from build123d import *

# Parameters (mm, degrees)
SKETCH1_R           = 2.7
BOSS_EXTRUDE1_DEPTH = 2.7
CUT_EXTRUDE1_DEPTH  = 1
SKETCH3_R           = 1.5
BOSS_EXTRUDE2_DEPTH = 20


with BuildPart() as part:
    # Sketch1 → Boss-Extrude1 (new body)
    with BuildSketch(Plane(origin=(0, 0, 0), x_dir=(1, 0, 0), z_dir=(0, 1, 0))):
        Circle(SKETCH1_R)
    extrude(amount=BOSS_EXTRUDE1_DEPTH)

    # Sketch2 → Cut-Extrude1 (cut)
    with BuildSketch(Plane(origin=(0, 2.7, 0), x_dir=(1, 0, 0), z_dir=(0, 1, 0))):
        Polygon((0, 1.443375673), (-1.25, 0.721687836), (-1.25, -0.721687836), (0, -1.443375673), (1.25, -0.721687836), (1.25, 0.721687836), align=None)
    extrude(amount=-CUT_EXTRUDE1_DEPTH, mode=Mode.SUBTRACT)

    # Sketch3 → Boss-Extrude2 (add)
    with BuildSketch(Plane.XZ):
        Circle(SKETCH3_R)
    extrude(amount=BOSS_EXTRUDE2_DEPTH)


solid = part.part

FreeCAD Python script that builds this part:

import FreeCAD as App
import Part
import Sketcher

V = App.Vector
Q = App.Units.Quantity

doc = App.newDocument("Part")
body = doc.addObject("PartDesign::Body", "Body")

sketch1 = body.newObject("Sketcher::SketchObject", "Sketch")
sketch1.AttachmentSupport = (doc.getObject("XZ_Plane"), [""])
sketch1.MapMode = "FlatFace"
sketch1.addGeometry(Part.Circle(V(0, 0, 0), V(0, 0, 1), 2.7), False)
sketch1.addConstraint([
    Sketcher.Constraint("Coincident", 0, 3, -1, 1),
    Sketcher.Constraint("Diameter", 0, Q("5.4 mm")),
])
pad1 = body.newObject("PartDesign::Pad", "Pad")
pad1.Profile = sketch1
pad1.Length = 2.7
pad1.Reversed = True

sketch2 = body.newObject("Sketcher::SketchObject", "Sketch001")
sketch2.AttachmentSupport = (doc.getObject("XZ_Plane"), [""])
sketch2.MapMode = "FlatFace"
sketch2.AttachmentOffset = App.Placement(V(0, 0, -2.7), App.Rotation())
sketch2.addGeometry([
    Part.LineSegment(V(0, -1.4, 0), V(-1.2, -0.7, 0)),
    Part.LineSegment(V(-1.2, -0.7, 0), V(-1.2, 0.7, 0)),
    Part.LineSegment(V(-1.2, 0.7, 0), V(0, 1.4, 0)),
    Part.LineSegment(V(0, 1.4, 0), V(1.2, 0.7, 0)),
    Part.LineSegment(V(1.2, 0.7, 0), V(1.2, -0.7, 0)),
    Part.LineSegment(V(1.2, -0.7, 0), V(0, -1.4, 0)),
], False)
sketch2.addConstraint([
    Sketcher.Constraint("Coincident", 0, 2, 1, 1),
    Sketcher.Constraint("Coincident", 1, 2, 2, 1),
    Sketcher.Constraint("Coincident", 2, 2, 3, 1),
    Sketcher.Constraint("Coincident", 3, 2, 4, 1),
    Sketcher.Constraint("Coincident", 4, 2, 5, 1),
    Sketcher.Constraint("Coincident", 5, 2, 0, 1),
    Sketcher.Constraint("Vertical", 1),
    Sketcher.Constraint("Vertical", 4),
    Sketcher.Constraint("Symmetric", 0, 2, 3, 2, -1, 1),
    Sketcher.Constraint("Symmetric", 2, 2, 5, 2, -1, 1),
    Sketcher.Constraint("PointOnObject", 2, 2, -2),
    Sketcher.Constraint("Parallel", 2, 5),
    Sketcher.Constraint("Horizontal", 1, 2, 3, 2),
    Sketcher.Constraint("Angle", 0, Q("150 deg")),
    Sketcher.Constraint("DistanceX", 1, 2, 3, 2, Q("2.5 mm")),
    Sketcher.Constraint("DistanceY", 1, 1, 1, 2, Q("1.443376 mm")),
])
pocket1 = body.newObject("PartDesign::Pocket", "Pocket")
pocket1.Profile = sketch2
pocket1.Length = 1
pocket1.Reversed = True

sketch3 = body.newObject("Sketcher::SketchObject", "Sketch002")
sketch3.AttachmentSupport = (doc.getObject("XZ_Plane"), [""])
sketch3.MapMode = "FlatFace"
sketch3.addGeometry(Part.Circle(V(0, 0, 0), V(0, 0, 1), 1.5), False)
sketch3.addConstraint([
    Sketcher.Constraint("Coincident", 0, 3, -1, 1),
    Sketcher.Constraint("Diameter", 0, Q("3 mm")),
])
pad2 = body.newObject("PartDesign::Pad", "Pad001")
pad2.Profile = sketch3
pad2.Length = 20

doc.recompute()
